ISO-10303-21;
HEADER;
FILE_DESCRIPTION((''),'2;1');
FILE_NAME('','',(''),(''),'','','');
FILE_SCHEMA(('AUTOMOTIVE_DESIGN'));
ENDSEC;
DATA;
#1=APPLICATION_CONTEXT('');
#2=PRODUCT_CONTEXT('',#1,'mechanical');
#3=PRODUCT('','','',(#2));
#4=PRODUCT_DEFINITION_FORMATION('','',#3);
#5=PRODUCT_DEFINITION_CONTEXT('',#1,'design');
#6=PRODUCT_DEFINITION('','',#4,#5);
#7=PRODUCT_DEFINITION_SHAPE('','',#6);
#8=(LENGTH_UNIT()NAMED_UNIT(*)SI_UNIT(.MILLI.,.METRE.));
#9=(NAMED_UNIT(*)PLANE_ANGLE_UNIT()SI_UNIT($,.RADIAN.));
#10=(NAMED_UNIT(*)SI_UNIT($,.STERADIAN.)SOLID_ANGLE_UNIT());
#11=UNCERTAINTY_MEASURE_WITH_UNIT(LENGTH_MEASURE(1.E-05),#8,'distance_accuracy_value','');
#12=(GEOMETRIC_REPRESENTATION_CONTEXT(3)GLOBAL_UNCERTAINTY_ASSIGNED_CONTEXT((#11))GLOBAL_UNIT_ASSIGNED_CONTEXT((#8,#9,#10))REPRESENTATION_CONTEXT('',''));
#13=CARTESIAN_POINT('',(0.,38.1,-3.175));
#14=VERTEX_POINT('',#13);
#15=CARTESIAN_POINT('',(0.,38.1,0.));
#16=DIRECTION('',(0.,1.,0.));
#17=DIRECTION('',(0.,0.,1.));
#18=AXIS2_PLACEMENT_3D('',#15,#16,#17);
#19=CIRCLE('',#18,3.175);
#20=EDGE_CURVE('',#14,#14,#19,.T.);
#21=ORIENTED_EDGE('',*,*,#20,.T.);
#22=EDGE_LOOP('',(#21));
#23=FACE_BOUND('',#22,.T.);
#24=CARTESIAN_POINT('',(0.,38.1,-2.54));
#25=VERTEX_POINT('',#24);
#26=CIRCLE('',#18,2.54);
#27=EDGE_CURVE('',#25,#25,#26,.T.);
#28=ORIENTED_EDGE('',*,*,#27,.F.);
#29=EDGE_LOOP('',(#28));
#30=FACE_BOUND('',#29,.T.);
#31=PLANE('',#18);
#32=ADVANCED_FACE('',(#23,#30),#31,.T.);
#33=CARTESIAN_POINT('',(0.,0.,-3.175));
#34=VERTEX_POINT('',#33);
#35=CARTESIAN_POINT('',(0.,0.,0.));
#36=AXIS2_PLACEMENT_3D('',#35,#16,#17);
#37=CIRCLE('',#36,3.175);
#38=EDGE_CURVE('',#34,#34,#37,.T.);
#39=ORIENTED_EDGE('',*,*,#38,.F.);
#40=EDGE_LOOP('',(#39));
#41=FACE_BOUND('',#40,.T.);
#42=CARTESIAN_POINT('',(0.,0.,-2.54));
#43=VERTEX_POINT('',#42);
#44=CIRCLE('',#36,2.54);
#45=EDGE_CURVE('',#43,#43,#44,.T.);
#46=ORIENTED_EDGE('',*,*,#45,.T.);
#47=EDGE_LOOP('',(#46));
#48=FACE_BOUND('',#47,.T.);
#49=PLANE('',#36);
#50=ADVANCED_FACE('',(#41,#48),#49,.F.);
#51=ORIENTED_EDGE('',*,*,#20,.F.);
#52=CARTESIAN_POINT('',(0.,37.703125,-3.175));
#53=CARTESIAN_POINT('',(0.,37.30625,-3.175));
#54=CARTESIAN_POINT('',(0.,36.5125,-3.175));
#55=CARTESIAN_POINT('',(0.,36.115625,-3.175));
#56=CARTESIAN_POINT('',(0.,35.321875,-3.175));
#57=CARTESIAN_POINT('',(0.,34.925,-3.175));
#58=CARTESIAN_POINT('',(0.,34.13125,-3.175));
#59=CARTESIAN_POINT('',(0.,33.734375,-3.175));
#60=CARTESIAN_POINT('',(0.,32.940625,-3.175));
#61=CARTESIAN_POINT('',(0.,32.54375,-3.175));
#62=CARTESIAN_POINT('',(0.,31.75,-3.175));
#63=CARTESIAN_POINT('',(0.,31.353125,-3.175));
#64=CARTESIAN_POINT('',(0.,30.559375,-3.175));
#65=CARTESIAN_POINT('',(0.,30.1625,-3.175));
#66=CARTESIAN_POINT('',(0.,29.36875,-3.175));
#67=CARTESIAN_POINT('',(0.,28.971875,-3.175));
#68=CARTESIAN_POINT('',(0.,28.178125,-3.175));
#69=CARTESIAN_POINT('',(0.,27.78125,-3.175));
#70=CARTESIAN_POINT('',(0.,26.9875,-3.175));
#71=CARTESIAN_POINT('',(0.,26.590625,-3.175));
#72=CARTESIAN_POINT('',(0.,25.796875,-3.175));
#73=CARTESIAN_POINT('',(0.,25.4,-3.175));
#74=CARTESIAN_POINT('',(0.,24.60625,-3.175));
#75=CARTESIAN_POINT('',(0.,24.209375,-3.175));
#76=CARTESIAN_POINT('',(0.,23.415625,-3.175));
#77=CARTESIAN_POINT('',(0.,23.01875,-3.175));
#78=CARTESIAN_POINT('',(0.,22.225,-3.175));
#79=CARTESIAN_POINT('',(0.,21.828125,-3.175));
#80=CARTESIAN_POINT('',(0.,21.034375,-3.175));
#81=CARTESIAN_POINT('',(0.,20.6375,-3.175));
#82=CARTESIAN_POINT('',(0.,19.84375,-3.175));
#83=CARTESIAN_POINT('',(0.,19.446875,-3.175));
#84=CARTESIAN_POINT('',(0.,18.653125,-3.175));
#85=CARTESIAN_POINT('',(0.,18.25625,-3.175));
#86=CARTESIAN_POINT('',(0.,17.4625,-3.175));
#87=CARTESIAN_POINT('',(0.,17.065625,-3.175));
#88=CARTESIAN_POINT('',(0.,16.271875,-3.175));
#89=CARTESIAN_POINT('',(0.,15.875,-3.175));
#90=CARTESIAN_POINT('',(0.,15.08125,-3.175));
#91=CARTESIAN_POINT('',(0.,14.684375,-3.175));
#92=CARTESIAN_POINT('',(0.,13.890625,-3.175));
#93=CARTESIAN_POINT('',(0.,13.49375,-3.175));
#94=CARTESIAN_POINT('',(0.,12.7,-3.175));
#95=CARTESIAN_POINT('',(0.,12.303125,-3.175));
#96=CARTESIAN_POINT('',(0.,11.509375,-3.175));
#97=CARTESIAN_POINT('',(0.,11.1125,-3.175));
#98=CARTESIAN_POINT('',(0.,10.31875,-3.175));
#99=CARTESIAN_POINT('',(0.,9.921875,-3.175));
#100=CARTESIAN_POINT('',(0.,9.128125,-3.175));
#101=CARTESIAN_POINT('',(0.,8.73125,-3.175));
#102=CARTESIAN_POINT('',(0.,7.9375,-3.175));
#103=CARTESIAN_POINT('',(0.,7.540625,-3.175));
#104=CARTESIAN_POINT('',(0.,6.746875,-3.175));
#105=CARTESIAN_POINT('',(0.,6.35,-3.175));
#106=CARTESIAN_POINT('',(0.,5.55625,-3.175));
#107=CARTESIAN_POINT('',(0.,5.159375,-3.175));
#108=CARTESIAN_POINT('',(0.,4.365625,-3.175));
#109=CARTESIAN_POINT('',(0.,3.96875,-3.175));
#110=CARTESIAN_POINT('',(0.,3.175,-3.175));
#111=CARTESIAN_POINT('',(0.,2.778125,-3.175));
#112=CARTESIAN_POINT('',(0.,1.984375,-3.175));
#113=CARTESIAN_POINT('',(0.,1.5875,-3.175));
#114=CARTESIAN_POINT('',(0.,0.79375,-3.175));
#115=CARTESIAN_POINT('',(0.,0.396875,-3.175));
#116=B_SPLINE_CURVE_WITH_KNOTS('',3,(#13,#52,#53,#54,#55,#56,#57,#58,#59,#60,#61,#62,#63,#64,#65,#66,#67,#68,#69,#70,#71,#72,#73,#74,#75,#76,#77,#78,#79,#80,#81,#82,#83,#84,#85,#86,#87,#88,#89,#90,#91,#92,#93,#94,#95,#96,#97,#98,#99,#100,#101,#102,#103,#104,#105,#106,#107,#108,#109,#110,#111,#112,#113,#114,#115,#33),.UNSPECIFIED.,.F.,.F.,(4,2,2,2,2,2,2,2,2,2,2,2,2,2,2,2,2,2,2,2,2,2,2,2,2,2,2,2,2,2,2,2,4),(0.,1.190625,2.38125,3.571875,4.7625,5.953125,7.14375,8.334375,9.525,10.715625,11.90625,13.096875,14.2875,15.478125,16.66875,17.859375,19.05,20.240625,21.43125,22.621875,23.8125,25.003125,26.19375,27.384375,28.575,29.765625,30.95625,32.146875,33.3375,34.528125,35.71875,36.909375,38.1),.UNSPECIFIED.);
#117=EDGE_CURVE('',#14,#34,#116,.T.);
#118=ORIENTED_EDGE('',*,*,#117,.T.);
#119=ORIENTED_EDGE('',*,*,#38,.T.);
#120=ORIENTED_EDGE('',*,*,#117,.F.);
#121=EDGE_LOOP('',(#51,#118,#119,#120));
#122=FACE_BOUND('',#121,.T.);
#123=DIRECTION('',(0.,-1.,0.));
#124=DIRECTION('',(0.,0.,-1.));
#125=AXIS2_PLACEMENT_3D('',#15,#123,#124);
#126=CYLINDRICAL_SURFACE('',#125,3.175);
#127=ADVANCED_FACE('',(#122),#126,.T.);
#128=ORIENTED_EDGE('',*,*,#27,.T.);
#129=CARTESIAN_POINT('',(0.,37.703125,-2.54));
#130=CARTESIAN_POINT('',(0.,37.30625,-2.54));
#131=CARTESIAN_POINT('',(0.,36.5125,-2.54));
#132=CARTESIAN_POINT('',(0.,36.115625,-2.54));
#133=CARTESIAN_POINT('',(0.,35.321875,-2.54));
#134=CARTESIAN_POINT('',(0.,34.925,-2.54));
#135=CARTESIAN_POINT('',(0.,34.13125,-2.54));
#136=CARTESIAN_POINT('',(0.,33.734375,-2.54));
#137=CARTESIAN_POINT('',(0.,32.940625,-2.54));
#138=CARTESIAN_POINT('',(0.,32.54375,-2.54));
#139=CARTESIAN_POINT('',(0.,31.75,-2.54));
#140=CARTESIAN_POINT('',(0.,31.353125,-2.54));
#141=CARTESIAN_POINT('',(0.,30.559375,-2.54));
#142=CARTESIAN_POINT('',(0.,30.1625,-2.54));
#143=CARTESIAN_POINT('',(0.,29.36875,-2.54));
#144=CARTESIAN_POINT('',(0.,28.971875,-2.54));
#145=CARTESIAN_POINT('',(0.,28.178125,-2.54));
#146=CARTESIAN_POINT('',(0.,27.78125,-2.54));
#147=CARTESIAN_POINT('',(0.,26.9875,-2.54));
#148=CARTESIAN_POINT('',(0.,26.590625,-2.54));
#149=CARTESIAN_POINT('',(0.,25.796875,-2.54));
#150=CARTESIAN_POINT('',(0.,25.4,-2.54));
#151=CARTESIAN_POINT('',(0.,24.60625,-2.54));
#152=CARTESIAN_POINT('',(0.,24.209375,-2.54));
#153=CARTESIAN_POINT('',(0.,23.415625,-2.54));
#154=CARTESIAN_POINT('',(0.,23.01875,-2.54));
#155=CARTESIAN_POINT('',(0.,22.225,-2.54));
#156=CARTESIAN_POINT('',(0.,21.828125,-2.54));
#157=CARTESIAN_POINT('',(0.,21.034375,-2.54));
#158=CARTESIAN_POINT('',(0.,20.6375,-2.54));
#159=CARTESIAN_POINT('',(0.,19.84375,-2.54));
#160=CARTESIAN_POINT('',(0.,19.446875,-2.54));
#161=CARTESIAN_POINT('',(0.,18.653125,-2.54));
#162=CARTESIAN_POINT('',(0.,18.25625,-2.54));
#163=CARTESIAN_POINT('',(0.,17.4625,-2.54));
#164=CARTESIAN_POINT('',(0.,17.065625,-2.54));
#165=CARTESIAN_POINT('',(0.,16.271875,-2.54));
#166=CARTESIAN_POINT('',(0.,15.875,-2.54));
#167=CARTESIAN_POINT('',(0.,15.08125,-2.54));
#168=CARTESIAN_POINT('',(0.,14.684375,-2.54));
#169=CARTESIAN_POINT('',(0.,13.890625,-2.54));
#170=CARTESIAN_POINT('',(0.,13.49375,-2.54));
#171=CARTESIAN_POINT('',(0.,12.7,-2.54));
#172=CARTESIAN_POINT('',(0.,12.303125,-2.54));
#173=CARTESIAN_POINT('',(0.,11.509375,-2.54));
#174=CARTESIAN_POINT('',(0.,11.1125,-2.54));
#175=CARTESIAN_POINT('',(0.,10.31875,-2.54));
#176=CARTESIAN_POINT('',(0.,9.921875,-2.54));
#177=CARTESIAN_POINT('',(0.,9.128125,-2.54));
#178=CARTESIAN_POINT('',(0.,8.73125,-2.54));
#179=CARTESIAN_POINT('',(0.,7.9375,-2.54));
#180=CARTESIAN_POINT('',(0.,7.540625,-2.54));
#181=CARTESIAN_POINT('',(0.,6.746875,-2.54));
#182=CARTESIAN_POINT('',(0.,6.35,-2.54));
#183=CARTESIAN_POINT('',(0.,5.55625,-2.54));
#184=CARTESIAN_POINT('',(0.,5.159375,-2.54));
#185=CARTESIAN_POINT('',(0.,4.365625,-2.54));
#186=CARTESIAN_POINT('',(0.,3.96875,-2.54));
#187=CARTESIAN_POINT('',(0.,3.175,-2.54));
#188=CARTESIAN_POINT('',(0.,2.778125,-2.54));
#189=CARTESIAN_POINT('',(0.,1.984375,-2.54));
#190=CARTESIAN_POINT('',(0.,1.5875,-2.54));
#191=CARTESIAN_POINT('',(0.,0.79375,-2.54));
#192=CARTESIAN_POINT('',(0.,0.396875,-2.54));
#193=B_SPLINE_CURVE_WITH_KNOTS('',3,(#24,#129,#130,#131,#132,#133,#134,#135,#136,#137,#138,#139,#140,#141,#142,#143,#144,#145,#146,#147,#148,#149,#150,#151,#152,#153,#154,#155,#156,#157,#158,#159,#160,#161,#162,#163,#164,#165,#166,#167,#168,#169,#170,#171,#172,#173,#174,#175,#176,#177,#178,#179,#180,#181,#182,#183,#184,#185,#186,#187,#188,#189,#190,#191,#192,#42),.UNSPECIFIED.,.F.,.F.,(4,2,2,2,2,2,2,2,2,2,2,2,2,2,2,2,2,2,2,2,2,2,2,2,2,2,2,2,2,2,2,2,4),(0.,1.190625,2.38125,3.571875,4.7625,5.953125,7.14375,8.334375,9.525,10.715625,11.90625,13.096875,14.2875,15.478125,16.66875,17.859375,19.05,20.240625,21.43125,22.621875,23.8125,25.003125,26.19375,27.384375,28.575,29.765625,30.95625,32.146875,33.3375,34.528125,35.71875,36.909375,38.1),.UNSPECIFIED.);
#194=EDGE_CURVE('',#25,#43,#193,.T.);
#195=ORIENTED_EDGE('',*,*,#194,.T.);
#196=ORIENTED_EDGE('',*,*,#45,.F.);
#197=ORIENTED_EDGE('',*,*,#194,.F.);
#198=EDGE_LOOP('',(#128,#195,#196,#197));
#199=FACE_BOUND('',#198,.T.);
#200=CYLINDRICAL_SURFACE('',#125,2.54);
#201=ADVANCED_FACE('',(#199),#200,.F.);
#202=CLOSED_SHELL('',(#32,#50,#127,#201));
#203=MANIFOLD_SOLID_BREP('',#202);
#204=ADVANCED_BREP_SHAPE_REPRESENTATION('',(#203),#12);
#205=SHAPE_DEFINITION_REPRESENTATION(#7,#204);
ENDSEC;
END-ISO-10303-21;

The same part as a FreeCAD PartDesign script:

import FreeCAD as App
import Part
import Sketcher
from FreeCAD import Vector
Q = App.Units.Quantity

doc = App.newDocument("Part")
body = doc.addObject("PartDesign::Body", "Body")

sketch1 = body.newObject("Sketcher::SketchObject", "Sketch")
sketch1.AttachmentSupport = (doc.getObject("XZ_Plane"), [""])
sketch1.MapMode = "FlatFace"
sketch1.addGeometry([
    Part.Circle(Vector(0, 0, 0), Vector(0, 0, 1), 3.2),
    Part.Circle(Vector(0, 0, 0), Vector(0, 0, 1), 2.5),
], False)
sketch1.addConstraint([
    Sketcher.Constraint("Coincident", 0, 3, -1, 1),
    Sketcher.Constraint("Coincident", 1, 3, -1, 1),
    Sketcher.Constraint("Diameter", 1, Q("0.2 in")),
    Sketcher.Constraint("Diameter", 0, Q("0.25 in")),
])
pad1 = body.newObject("PartDesign::Pad", "Pad")
pad1.Profile = sketch1
pad1.Length = Q("1.5 in")
pad1.Reversed = True

doc.recompute()
